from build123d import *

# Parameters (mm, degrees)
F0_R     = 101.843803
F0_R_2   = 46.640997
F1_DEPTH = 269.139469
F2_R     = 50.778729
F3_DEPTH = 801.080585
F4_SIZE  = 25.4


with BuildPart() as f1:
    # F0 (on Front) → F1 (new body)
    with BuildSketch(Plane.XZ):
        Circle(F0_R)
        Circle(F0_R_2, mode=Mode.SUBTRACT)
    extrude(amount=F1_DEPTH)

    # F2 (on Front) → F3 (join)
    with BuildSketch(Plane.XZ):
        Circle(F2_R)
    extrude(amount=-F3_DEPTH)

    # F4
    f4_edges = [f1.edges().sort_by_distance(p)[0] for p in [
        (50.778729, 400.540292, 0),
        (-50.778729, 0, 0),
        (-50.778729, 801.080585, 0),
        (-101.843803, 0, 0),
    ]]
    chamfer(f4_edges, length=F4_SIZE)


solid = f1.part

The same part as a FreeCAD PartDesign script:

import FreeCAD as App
import Part
import Sketcher
Q = App.Units.Quantity


def edges_at(feature, points):
    """Names of the edges that pass closest to the given points."""
    edges = feature.Shape.Edges
    near = lambda p: min(range(len(edges)), key=lambda i: edges[i].distToShape(Part.Vertex(*p))[0])
    return sorted({f"Edge{near(p) + 1}" for p in points})

doc = App.newDocument("Part")
body = doc.addObject("PartDesign::Body", "Body")

# Sketch on XZ plane
sketch1 = doc.addObject("Sketcher::SketchObject", "Sketch")
body.addObject(sketch1)
sketch1.AttachmentSupport = (doc.XZ_Plane, [""])
sketch1.MapMode = "FlatFace"
sketch1.addGeometry(Part.Circle(App.Vector(0, 0, 0), App.Vector(0, 0, 1), 102), False)
sketch1.addGeometry(Part.Circle(App.Vector(0, 0, 0), App.Vector(0, 0, 1), 47), False)
sketch1.addConstraint(Sketcher.Constraint("Coincident", 0, 3, -1, 1))
sketch1.addConstraint(Sketcher.Constraint("Coincident", 1, 3, -1, 1))
sketch1.addConstraint(Sketcher.Constraint("Diameter", 0, 203.687606))
sketch1.addConstraint(Sketcher.Constraint("Diameter", 1, 93.281994))
pad1 = doc.addObject("PartDesign::Pad", "Pad")
body.addObject(pad1)
pad1.Profile = sketch1
pad1.Length = 269.139469

# Sketch on XZ plane
sketch2 = doc.addObject("Sketcher::SketchObject", "Sketch001")
body.addObject(sketch2)
sketch2.AttachmentSupport = (doc.XZ_Plane, [""])
sketch2.MapMode = "FlatFace"
sketch2.addGeometry(Part.Circle(App.Vector(0, 0, 0), App.Vector(0, 0, 1), 51), False)
sketch2.addConstraint(Sketcher.Constraint("Coincident", 0, 3, -1, 1))
sketch2.addConstraint(Sketcher.Constraint("Diameter", 0, 101.557458))
pad2 = doc.addObject("PartDesign::Pad", "Pad001")
body.addObject(pad2)
pad2.Profile = sketch2
pad2.Length = 801.080585
pad2.Reversed = True
doc.recompute()

chamfer = doc.addObject("PartDesign::Chamfer", "Chamfer")
body.addObject(chamfer)
chamfer.Base = (pad2, edges_at(pad2, [
    (50.779, 400.54, 0),
    (-50.779, 0, 0),
    (-50.779, 801.081, 0),
    (-101.844, 0, 0),
]))
chamfer.Size = Q("1 in")

doc.recompute()
